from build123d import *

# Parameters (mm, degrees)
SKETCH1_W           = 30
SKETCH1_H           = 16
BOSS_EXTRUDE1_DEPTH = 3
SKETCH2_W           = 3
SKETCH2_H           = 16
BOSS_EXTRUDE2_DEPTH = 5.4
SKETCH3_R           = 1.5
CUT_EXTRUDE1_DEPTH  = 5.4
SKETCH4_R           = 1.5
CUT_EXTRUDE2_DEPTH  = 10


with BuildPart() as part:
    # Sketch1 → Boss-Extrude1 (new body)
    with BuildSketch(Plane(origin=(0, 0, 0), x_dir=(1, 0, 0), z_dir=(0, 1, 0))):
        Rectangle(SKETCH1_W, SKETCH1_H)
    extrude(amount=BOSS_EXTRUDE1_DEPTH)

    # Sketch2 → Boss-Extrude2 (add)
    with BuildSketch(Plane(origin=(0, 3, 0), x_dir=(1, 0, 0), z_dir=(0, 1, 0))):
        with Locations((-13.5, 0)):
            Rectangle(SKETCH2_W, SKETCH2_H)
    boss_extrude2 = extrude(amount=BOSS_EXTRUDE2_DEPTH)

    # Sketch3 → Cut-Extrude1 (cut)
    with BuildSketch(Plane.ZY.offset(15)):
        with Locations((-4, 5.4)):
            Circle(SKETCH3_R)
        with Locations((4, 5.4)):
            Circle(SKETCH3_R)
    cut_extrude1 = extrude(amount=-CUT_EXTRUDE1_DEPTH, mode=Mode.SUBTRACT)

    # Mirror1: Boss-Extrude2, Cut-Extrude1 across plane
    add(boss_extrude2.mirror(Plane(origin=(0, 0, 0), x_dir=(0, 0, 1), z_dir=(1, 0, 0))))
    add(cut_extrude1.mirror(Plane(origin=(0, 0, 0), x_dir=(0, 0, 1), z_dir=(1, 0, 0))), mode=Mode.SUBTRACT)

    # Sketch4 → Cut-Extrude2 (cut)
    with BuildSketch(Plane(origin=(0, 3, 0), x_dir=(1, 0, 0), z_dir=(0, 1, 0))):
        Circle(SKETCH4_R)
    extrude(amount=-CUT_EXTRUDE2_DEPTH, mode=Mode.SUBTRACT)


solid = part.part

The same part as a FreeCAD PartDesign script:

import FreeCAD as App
import Part
import Sketcher

V = App.Vector
Q = App.Units.Quantity


def add_polygon(sketch, points):
    """Adds a closed chain of lines whose ends are joined by coincident constraints."""
    first, n = sketch.GeometryCount, len(points)
    for a, b in zip(points, points[1:] + points[:1]):
        sketch.addGeometry(Part.LineSegment(App.Vector(*a, 0), App.Vector(*b, 0)), False)
    for i in range(n):
        sketch.addConstraint(Sketcher.Constraint("Coincident", first + i, 2, first + (i + 1) % n, 1))

doc = App.newDocument("Part")
body = doc.addObject("PartDesign::Body", "Body")

sketch1 = body.newObject("Sketcher::SketchObject", "Sketch")
sketch1.AttachmentSupport = (doc.getObject("XZ_Plane"), [""])
sketch1.MapMode = "FlatFace"
add_polygon(sketch1, [(-15, -8), (-15, 8), (15, 8), (15, -8)])
sketch1.addConstraint([
    Sketcher.Constraint("Vertical", 0),
    Sketcher.Constraint("Horizontal", 1),
    Sketcher.Constraint("Vertical", 2),
    Sketcher.Constraint("Horizontal", 3),
    Sketcher.Constraint("Symmetric", 0, 2, 2, 2, -1, 1),
    Sketcher.Constraint("DistanceX", 1, 1, 1, 2, Q("30 mm")),
    Sketcher.Constraint("DistanceY", 0, 1, 0, 2, Q("16 mm")),
])
pad1 = body.newObject("PartDesign::Pad", "Pad")
pad1.Profile = sketch1
pad1.Length = 3
pad1.Reversed = True

sketch2 = body.newObject("Sketcher::SketchObject", "Sketch001")
sketch2.AttachmentSupport = (doc.getObject("XZ_Plane"), [""])
sketch2.MapMode = "FlatFace"
sketch2.AttachmentOffset = App.Placement(V(0, 0, -3), App.Rotation())
add_polygon(sketch2, [(-15, -8), (-15, 8), (-12, 8), (-12, -8)])
sketch2.addConstraint([
    Sketcher.Constraint("Vertical", 0),
    Sketcher.Constraint("Horizontal", 1),
    Sketcher.Constraint("Vertical", 2),
    Sketcher.Constraint("Horizontal", 3),
    Sketcher.Constraint("DistanceX", 1, 1, 1, 2, Q("3 mm")),
    Sketcher.Constraint("DistanceY", 0, 1, 0, 2, Q("16 mm")),
    Sketcher.Constraint("DistanceX", 0, 2, -1, 1, Q("15 mm")),
    Sketcher.Constraint("DistanceY", -1, 1, 0, 2, Q("8 mm")),
])
pad2 = body.newObject("PartDesign::Pad", "Pad001")
pad2.Profile = sketch2
pad2.Length = 5.4
pad2.Reversed = True

sketch3 = body.newObject("Sketcher::SketchObject", "Sketch002")
sketch3.AttachmentSupport = (doc.getObject("YZ_Plane"), [""])
sketch3.MapMode = "FlatFace"
sketch3.AttachmentOffset = App.Placement(V(0, 0, -15), App.Rotation())
sketch3.addGeometry([
    Part.Circle(V(5.4, -4, 0), V(0, 0, 1), 1.5),
    Part.Circle(V(5.4, 4, 0), V(0, 0, 1), 1.5),
], False)
sketch3.addConstraint([
    Sketcher.Constraint("Equal", 0, 1),
    Sketcher.Constraint("Symmetric", 0, 3, 1, 3, -1),
    Sketcher.Constraint("Diameter", 0, Q("3 mm")),
    Sketcher.Constraint("DistanceY", 0, 3, -1, 1, Q("4 mm")),
    Sketcher.Constraint("DistanceX", -1, 1, 0, 3, Q("5.4 mm")),
])
pocket1 = body.newObject("PartDesign::Pocket", "Pocket")
pocket1.Profile = sketch3
pocket1.Length = 5.4
pocket1.Reversed = True
doc.recompute()

mirrored = body.newObject("PartDesign::Mirrored", "Mirrored")
mirrored.Originals = [pad2, pocket1]
mirrored.MirrorPlane = (doc.getObject("YZ_Plane"), [""])
body.Tip = mirrored

sketch4 = body.newObject("Sketcher::SketchObject", "Sketch003")
sketch4.AttachmentSupport = (doc.getObject("XZ_Plane"), [""])
sketch4.MapMode = "FlatFace"
sketch4.AttachmentOffset = App.Placement(V(0, 0, -3), App.Rotation())
sketch4.addGeometry(Part.Circle(V(0, 0, 0), V(0, 0, 1), 1.5), False)
sketch4.addConstraint([
    Sketcher.Constraint("Coincident", 0, 3, -1, 1),
    Sketcher.Constraint("Diameter", 0, Q("3 mm")),
])
pocket2 = body.newObject("PartDesign::Pocket", "Pocket001")
pocket2.Profile = sketch4
pocket2.Length = 10
pocket2.Reversed = True

doc.recompute()
